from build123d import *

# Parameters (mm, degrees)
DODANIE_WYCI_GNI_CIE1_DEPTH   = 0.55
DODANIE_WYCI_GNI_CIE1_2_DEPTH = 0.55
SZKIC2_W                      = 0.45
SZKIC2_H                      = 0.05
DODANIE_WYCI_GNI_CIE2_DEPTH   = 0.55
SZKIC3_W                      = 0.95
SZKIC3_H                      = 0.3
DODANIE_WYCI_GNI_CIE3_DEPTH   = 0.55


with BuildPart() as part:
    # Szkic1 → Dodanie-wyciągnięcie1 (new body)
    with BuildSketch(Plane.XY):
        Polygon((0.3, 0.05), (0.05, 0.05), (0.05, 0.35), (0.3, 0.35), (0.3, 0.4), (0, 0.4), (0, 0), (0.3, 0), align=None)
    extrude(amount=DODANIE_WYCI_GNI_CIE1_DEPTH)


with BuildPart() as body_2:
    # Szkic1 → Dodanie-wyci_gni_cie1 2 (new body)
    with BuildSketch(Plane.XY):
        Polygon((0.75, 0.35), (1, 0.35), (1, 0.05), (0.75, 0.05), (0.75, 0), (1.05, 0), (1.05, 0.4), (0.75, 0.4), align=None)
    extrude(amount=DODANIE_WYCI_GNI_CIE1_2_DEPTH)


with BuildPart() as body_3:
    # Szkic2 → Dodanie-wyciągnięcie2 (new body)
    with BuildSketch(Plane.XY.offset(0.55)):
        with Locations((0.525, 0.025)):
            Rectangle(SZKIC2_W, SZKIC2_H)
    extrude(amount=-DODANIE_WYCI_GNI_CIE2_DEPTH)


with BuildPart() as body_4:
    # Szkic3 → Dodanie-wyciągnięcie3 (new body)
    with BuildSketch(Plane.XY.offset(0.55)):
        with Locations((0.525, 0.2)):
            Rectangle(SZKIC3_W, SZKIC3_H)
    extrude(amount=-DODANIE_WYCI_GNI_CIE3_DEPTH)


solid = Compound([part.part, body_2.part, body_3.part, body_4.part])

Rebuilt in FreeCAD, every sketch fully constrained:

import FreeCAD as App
import Part
import Sketcher

V = App.Vector
Q = App.Units.Quantity


def add_polygon(sketch, points):
    """Adds a closed chain of lines whose ends are joined by coincident constraints."""
    first, n = sketch.GeometryCount, len(points)
    for a, b in zip(points, points[1:] + points[:1]):
        sketch.addGeometry(Part.LineSegment(App.Vector(*a, 0), App.Vector(*b, 0)), False)
    for i in range(n):
        sketch.addConstraint(Sketcher.Constraint("Coincident", first + i, 2, first + (i + 1) % n, 1))

doc = App.newDocument("Part")
body = doc.addObject("PartDesign::Body", "Body")

# Sketch on XY plane
sketch1 = body.newObject("Sketcher::SketchObject", "Sketch")
sketch1.AttachmentSupport = (doc.getObject("XY_Plane"), [""])
sketch1.MapMode = "FlatFace"
add_polygon(sketch1, [(0.3, 0.05), (0.05, 0.05), (0.05, 0.35), (0.3, 0.35), (0.3, 0.4), (0, 0.4), (0, 0), (0.3, 0)])  # lines 0-7
sketch1.addConstraint([
    Sketcher.Constraint("Horizontal", 0),
    Sketcher.Constraint("Vertical", 1),
    Sketcher.Constraint("Horizontal", 2),
    Sketcher.Constraint("Vertical", 3),
    Sketcher.Constraint("Horizontal", 4),
    Sketcher.Constraint("Vertical", 5),
    Sketcher.Constraint("Horizontal", 6),
    Sketcher.Constraint("Vertical", 7),
    Sketcher.Constraint("Coincident", 5, 2, -1, 1),
    Sketcher.Constraint("Vertical", 3, 2, 6, 2),
    Sketcher.Constraint("Equal", 6, 1),
    Sketcher.Constraint("Equal", 3, 7),
    Sketcher.Constraint("DistanceX", 4, 2, 4, 1, Q("0.3 mm")),
    Sketcher.Constraint("DistanceY", 5, 2, 5, 1, Q("0.4 mm")),
    Sketcher.Constraint("DistanceX", 0, 2, 0, 1, Q("0.25 mm")),
])
pad1 = body.newObject("PartDesign::Pad", "Pad")
pad1.Profile = sketch1
pad1.Length = 0.55
body2 = doc.addObject("PartDesign::Body", "Body001")

# Sketch on XY plane
sketch2 = body2.newObject("Sketcher::SketchObject", "Sketch001")
sketch2.AttachmentSupport = (doc.getObject("XY_Plane001"), [""])
sketch2.MapMode = "FlatFace"
add_polygon(sketch2, [(0.75, 0.35), (1, 0.35), (1, 0.05), (0.75, 0.05), (0.75, 0), (1.05, 0), (1.05, 0.4), (0.75, 0.4)])  # lines 0-7
sketch2.addConstraint([
    Sketcher.Constraint("Horizontal", 0),
    Sketcher.Constraint("Vertical", 1),
    Sketcher.Constraint("Horizontal", 2),
    Sketcher.Constraint("Vertical", 3),
    Sketcher.Constraint("Horizontal", 4),
    Sketcher.Constraint("Vertical", 5),
    Sketcher.Constraint("Horizontal", 6),
    Sketcher.Constraint("Vertical", 7),
    Sketcher.Constraint("PointOnObject", 3, 2, -1),
    Sketcher.Constraint("Vertical", 3, 2, 6, 2),
    Sketcher.Constraint("Equal", 6, 1),
    Sketcher.Constraint("Equal", 3, 7),
    Sketcher.Constraint("DistanceX", 4, 1, 4, 2, Q("0.3 mm")),
    Sketcher.Constraint("DistanceY", 5, 1, 5, 2, Q("0.4 mm")),
    Sketcher.Constraint("DistanceX", -1, 1, 0, 2, Q("1 mm")),
    Sketcher.Constraint("DistanceX", 0, 1, 0, 2, Q("0.25 mm")),
])
pad2 = body2.newObject("PartDesign::Pad", "Pad001")
pad2.Profile = sketch2
pad2.Length = 0.55
body3 = doc.addObject("PartDesign::Body", "Body002")

# Sketch on XY plane
sketch3 = body3.newObject("Sketcher::SketchObject", "Sketch002")
sketch3.AttachmentSupport = (doc.getObject("XY_Plane002"), [""])
sketch3.MapMode = "FlatFace"
sketch3.AttachmentOffset = App.Placement(V(0, 0, 0.55), App.Rotation())
add_polygon(sketch3, [(0.3, 0.05), (0.3, 0), (0.75, 0), (0.75, 0.05)])  # lines 0-3
sketch3.addConstraint([
    Sketcher.Constraint("Vertical", 0),
    Sketcher.Constraint("Horizontal", 1),
    Sketcher.Constraint("Vertical", 2),
    Sketcher.Constraint("Horizontal", 3),
    Sketcher.Constraint("PointOnObject", 0, 2, -1),
    Sketcher.Constraint("DistanceX", 1, 1, 1, 2, Q("0.45 mm")),
    Sketcher.Constraint("DistanceY", 0, 2, 0, 1, Q("0.05 mm")),
    Sketcher.Constraint("DistanceX", -1, 1, 0, 2, Q("0.3 mm")),
])
pad3 = body3.newObject("PartDesign::Pad", "Pad002")
pad3.Profile = sketch3
pad3.Length = 0.55
pad3.Reversed = True
body4 = doc.addObject("PartDesign::Body", "Body003")

# Sketch on XY plane
sketch4 = body4.newObject("Sketcher::SketchObject", "Sketch003")
sketch4.AttachmentSupport = (doc.getObject("XY_Plane003"), [""])
sketch4.MapMode = "FlatFace"
sketch4.AttachmentOffset = App.Placement(V(0, 0, 0.55), App.Rotation())
add_polygon(sketch4, [(0.05, 0.35), (0.05, 0.05), (1, 0.05), (1, 0.35)])  # lines 0-3
sketch4.addConstraint([
    Sketcher.Constraint("Vertical", 0),
    Sketcher.Constraint("Horizontal", 1),
    Sketcher.Constraint("Vertical", 2),
    Sketcher.Constraint("Horizontal", 3),
    Sketcher.Constraint("DistanceY", 0, 2, 0, 1, Q("0.3 mm")),
    Sketcher.Constraint("DistanceX", -1, 1, 1, 2, Q("1 mm")),
    Sketcher.Constraint("DistanceX", 1, 1, 1, 2, Q("0.95 mm")),
    Sketcher.Constraint("DistanceY", -1, 1, 0, 2, Q("0.05 mm")),
])
pad4 = body4.newObject("PartDesign::Pad", "Pad003")
pad4.Profile = sketch4
pad4.Length = 0.55
pad4.Reversed = True

doc.recompute()
